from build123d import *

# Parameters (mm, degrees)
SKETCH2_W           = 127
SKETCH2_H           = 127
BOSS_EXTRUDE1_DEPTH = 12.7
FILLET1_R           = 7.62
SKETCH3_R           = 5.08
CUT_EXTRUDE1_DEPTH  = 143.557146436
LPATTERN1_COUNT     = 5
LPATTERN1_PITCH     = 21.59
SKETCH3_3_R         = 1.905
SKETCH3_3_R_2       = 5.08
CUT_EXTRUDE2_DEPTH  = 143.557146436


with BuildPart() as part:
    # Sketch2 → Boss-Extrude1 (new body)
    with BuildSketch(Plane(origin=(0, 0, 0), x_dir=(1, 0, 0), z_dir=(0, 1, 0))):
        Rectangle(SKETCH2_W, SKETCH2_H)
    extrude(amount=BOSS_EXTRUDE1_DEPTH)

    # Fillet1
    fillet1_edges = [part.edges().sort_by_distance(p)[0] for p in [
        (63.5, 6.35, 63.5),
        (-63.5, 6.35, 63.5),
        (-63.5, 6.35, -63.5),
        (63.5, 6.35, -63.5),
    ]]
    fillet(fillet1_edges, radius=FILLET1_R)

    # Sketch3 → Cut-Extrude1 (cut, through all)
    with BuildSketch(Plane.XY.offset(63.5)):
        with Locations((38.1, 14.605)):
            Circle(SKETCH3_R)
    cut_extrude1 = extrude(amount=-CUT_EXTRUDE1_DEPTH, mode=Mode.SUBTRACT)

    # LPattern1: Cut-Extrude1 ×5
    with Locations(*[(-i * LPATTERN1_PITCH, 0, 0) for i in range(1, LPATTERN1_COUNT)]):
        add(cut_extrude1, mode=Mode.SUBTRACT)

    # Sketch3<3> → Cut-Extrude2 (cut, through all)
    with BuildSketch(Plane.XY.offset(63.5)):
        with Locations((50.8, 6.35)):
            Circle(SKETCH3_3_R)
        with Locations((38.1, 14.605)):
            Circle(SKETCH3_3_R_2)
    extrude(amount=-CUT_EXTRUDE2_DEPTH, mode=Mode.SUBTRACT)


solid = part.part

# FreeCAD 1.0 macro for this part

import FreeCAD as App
import Part
import Sketcher

V = App.Vector
Q = App.Units.Quantity


def edges_at(feature, points):
    """Names of the edges that pass closest to the given points."""
    edges = feature.Shape.Edges
    near = lambda p: min(range(len(edges)), key=lambda i: edges[i].distToShape(Part.Vertex(*p))[0])
    return sorted({f"Edge{near(p) + 1}" for p in points})


def add_polygon(sketch, points):
    """Adds a closed chain of lines whose ends are joined by coincident constraints."""
    first, n = sketch.GeometryCount, len(points)
    for a, b in zip(points, points[1:] + points[:1]):
        sketch.addGeometry(Part.LineSegment(App.Vector(*a, 0), App.Vector(*b, 0)), False)
    for i in range(n):
        sketch.addConstraint(Sketcher.Constraint("Coincident", first + i, 2, first + (i + 1) % n, 1))

doc = App.newDocument("Part")
body = doc.addObject("PartDesign::Body", "Body")

# Sketch on XZ plane
sketch1 = body.newObject("Sketcher::SketchObject", "Sketch")
sketch1.AttachmentSupport = (doc.getObject("XZ_Plane"), [""])
sketch1.MapMode = "FlatFace"
add_polygon(sketch1, [(-63.5, -63.5), (-63.5, 63.5), (63.5, 63.5), (63.5, -63.5)])  # lines 0-3
sketch1.addConstraint([
    Sketcher.Constraint("Vertical", 0),
    Sketcher.Constraint("Horizontal", 1),
    Sketcher.Constraint("Vertical", 2),
    Sketcher.Constraint("Horizontal", 3),
    Sketcher.Constraint("Symmetric", 0, 2, 2, 2, -1, 1),
    Sketcher.Constraint("Equal", 3, 0),
    Sketcher.Constraint("DistanceX", 1, 1, 1, 2, Q("5 in")),
])
pad1 = body.newObject("PartDesign::Pad", "Pad")
pad1.Profile = sketch1
pad1.Length = Q("0.5 in")
pad1.Reversed = True
doc.recompute()

fillet = body.newObject("PartDesign::Fillet", "Fillet")
fillet.Base = (pad1, edges_at(pad1, [
    (63.5, 6.35, 63.5),
    (-63.5, 6.35, 63.5),
    (-63.5, 6.35, -63.5),
    (63.5, 6.35, -63.5),
]))
fillet.Radius = Q("0.3 in")

# Sketch on XY plane
sketch2 = body.newObject("Sketcher::SketchObject", "Sketch001")
sketch2.AttachmentSupport = (doc.getObject("XY_Plane"), [""])
sketch2.MapMode = "FlatFace"
sketch2.AttachmentOffset = App.Placement(V(0, 0, 2.5 * 25.4), App.Rotation())
sketch2.addGeometry(Part.Circle(V(38.1, 14.605, 0), V(0, 0, 1), 5.08), False)
sketch2.addConstraint([
    Sketcher.Constraint("Diameter", 0, Q("0.4 in")),
    Sketcher.Constraint("DistanceX", -1, 1, 0, 3, Q("1.5 in")),
    Sketcher.Constraint("DistanceY", -1, 1, 0, 3, Q("0.575 in")),
])
pocket1 = body.newObject("PartDesign::Pocket", "Pocket")
pocket1.Profile = sketch2
pocket1.Type = "ThroughAll"
doc.recompute()

linearpattern = body.newObject("PartDesign::LinearPattern", "LinearPattern")
linearpattern.Originals = [pocket1]
linearpattern.Direction = (doc.getObject("X_Axis"), [""])
linearpattern.Mode = "offset"
linearpattern.Offset = Q("0.85 in")
linearpattern.Occurrences = 5
linearpattern.Reversed = True
body.Tip = linearpattern

# Sketch on XY plane
sketch3 = body.newObject("Sketcher::SketchObject", "Sketch002")
sketch3.AttachmentSupport = (doc.getObject("XY_Plane"), [""])
sketch3.MapMode = "FlatFace"
sketch3.AttachmentOffset = App.Placement(V(0, 0, 2.5 * 25.4), App.Rotation())
sketch3.addGeometry([
    Part.Circle(V(50.8, 6.35, 0), V(0, 0, 1), 1.905),
    Part.Circle(V(38.1, 14.605, 0), V(0, 0, 1), 5.08),
], False)
sketch3.addConstraint([
    Sketcher.Constraint("Diameter", 1, Q("0.4 in")),
    Sketcher.Constraint("Diameter", 0, Q("0.15 in")),
    Sketcher.Constraint("DistanceX", -1, 1, 0, 3, Q("2 in")),
    Sketcher.Constraint("DistanceX", -1, 1, 1, 3, Q("1.5 in")),
    Sketcher.Constraint("DistanceY", -1, 1, 0, 3, Q("0.25 in")),
    Sketcher.Constraint("DistanceY", -1, 1, 1, 3, Q("0.575 in")),
])
pocket2 = body.newObject("PartDesign::Pocket", "Pocket001")
pocket2.Profile = sketch3
pocket2.Type = "ThroughAll"

doc.recompute()
